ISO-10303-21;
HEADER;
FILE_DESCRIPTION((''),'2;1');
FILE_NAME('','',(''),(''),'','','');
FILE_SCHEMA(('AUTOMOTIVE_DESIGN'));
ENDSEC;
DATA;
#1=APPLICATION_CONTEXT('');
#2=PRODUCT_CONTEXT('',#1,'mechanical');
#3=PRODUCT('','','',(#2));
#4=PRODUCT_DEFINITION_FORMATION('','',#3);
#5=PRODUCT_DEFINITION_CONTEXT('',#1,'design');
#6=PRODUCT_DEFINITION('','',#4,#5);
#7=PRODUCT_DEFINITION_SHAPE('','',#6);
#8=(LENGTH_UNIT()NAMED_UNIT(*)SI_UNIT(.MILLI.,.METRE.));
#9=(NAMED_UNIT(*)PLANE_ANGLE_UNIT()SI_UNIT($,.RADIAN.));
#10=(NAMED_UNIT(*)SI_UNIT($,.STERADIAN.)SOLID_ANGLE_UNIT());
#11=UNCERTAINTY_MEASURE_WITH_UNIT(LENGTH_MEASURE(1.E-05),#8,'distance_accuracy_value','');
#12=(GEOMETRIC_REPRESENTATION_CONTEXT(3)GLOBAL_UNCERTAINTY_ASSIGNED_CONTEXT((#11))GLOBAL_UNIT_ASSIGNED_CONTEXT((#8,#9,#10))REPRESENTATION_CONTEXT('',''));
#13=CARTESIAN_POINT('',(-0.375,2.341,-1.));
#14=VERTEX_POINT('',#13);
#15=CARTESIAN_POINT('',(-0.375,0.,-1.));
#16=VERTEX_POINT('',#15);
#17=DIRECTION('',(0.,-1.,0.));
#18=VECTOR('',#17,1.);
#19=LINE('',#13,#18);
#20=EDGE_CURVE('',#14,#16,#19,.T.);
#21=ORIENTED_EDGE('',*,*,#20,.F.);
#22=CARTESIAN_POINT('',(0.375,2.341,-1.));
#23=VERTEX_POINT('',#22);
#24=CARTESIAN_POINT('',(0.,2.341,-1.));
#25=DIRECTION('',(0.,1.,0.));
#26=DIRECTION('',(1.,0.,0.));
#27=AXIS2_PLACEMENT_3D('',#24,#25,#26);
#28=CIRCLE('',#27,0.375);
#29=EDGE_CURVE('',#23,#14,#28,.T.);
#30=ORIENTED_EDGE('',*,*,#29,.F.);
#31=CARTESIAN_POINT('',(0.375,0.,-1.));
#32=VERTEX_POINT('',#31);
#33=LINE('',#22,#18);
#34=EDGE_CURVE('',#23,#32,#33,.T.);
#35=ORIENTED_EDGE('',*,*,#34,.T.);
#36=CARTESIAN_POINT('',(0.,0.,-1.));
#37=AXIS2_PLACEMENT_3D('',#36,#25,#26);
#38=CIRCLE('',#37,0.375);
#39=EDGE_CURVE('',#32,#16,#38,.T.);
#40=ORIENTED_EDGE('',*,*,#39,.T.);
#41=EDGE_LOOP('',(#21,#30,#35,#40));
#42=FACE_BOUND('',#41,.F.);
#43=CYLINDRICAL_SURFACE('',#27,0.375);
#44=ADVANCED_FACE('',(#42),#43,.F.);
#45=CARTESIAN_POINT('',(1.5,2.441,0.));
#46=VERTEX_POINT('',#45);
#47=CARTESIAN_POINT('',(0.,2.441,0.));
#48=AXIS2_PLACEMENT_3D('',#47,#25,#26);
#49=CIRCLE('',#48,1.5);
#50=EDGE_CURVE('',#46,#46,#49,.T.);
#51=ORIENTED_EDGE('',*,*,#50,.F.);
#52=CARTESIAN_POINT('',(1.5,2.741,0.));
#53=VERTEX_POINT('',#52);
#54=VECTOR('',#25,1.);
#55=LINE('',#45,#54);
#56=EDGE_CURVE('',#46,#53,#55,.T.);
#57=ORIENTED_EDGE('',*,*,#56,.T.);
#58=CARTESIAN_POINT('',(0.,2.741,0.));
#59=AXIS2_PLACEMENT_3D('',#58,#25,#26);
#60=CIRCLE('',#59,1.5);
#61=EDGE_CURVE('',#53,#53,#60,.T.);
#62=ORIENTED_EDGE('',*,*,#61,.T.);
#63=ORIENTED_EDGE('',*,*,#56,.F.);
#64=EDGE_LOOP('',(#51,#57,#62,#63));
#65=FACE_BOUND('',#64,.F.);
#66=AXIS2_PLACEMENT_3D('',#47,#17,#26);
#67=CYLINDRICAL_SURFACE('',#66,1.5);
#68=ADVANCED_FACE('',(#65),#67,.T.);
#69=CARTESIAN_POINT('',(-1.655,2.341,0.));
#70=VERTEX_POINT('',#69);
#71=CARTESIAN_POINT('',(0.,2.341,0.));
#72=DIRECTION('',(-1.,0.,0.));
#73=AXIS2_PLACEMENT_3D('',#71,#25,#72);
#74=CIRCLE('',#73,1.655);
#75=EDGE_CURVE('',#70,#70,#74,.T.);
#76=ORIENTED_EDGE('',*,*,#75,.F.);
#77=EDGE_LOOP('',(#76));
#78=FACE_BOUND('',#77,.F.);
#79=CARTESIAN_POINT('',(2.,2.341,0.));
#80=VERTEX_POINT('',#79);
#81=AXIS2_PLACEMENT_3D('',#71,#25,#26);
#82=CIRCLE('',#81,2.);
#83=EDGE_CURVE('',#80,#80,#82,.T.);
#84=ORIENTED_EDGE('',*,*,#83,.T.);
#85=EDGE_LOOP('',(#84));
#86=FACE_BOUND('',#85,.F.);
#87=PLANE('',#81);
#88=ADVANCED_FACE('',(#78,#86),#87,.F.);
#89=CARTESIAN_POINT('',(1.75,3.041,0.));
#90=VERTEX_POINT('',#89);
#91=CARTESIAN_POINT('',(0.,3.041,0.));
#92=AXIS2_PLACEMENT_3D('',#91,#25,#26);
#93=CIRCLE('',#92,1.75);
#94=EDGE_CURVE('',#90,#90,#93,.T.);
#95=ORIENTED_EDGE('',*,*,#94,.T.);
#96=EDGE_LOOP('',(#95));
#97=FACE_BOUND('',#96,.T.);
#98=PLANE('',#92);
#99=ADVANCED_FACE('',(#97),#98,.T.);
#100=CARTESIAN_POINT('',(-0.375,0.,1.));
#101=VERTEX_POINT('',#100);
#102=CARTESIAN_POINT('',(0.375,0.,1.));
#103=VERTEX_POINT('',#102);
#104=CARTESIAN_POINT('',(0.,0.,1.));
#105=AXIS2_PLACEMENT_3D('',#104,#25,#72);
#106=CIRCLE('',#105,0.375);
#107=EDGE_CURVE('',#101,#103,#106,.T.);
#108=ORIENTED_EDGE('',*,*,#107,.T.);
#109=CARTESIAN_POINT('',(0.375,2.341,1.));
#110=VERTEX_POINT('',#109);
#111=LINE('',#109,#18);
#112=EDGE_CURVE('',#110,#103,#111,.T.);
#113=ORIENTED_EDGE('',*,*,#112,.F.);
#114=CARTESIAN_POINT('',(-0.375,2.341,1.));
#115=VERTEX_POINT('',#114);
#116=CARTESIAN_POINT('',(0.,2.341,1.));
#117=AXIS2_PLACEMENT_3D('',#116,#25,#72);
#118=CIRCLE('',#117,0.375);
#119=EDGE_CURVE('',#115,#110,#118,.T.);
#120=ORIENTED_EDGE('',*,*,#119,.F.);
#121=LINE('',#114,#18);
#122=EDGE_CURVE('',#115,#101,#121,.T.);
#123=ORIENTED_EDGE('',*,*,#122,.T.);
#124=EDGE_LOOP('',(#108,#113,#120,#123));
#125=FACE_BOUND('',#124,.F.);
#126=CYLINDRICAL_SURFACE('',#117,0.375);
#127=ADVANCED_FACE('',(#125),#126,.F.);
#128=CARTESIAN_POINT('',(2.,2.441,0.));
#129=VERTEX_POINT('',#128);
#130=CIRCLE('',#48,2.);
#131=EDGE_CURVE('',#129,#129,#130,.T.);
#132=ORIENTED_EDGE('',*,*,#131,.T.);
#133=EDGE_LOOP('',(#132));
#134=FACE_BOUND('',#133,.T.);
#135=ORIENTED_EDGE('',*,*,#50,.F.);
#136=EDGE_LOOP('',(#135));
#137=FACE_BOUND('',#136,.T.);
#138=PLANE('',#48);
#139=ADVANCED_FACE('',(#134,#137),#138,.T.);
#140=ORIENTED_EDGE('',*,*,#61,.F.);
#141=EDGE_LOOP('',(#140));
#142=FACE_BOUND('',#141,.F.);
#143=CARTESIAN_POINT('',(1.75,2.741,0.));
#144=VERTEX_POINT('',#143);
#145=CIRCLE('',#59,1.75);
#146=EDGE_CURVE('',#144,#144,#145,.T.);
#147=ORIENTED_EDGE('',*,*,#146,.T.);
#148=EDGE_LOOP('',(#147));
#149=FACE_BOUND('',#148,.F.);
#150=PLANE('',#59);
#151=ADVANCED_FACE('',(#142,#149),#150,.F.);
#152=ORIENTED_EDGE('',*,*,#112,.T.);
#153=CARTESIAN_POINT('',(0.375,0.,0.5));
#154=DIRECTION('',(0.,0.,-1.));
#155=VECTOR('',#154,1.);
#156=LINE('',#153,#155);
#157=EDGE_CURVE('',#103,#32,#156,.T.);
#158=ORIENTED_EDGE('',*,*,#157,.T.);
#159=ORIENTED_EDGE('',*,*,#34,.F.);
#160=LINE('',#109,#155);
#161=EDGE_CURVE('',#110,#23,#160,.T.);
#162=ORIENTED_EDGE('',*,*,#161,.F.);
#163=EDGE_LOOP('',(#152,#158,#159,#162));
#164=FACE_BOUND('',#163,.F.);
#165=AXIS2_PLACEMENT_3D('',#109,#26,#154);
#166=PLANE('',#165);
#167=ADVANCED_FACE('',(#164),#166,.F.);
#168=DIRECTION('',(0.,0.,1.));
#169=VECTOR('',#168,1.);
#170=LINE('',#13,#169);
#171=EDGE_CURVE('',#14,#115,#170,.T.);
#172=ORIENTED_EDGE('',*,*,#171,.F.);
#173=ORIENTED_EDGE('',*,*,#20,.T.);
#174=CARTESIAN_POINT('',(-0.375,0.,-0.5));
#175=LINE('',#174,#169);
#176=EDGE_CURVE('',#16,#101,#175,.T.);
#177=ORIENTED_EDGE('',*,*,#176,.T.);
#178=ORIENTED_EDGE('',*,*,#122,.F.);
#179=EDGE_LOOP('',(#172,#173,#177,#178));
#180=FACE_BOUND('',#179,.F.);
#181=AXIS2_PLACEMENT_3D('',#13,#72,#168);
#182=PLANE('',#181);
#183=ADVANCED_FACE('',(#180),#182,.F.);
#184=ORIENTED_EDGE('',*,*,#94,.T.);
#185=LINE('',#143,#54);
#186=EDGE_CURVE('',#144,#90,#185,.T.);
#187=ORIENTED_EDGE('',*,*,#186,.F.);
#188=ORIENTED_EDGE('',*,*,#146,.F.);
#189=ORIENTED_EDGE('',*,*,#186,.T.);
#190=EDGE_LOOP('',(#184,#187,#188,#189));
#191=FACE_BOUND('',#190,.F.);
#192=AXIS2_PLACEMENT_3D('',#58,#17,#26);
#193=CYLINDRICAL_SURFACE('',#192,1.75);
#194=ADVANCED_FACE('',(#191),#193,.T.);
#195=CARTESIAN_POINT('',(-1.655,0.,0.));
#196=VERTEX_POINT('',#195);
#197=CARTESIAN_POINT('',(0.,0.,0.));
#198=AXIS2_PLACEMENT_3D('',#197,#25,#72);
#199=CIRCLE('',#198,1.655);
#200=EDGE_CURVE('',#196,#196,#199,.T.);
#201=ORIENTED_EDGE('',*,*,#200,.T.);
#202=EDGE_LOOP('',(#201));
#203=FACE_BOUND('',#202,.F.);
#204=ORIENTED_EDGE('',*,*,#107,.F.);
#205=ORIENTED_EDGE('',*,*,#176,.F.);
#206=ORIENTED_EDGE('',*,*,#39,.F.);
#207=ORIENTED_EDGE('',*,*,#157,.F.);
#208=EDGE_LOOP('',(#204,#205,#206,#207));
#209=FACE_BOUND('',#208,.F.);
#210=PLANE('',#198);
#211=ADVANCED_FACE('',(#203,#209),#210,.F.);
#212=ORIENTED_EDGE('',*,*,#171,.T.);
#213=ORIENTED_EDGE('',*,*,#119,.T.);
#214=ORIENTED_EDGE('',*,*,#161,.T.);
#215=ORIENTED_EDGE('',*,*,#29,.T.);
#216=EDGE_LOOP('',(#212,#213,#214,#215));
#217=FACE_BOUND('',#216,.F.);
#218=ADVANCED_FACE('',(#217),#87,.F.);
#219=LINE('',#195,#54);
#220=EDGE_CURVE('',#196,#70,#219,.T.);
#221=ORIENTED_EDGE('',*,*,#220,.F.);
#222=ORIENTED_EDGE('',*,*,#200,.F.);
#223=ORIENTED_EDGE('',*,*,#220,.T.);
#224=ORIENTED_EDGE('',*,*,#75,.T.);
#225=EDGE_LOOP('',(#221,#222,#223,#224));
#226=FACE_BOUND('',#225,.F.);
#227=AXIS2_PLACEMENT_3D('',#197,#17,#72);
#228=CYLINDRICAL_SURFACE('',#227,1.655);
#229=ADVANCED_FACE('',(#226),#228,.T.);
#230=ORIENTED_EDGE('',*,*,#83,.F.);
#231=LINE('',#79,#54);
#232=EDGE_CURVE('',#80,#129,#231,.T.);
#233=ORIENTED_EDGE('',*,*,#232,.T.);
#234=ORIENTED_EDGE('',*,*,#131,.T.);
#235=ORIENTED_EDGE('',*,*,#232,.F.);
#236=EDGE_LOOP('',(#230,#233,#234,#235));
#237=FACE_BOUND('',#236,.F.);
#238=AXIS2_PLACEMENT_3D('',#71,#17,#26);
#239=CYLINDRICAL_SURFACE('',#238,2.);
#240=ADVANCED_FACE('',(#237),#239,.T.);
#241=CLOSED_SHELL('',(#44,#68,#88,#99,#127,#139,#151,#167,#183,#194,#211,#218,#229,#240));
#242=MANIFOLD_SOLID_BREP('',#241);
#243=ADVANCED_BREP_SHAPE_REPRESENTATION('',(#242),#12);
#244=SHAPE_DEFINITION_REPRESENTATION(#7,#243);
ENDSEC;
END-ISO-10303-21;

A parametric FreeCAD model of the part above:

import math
import FreeCAD as App
import Part
import Sketcher

V = App.Vector
Q = App.Units.Quantity

doc = App.newDocument("Part")
body = doc.addObject("PartDesign::Body", "Body")

# Sketch on XZ plane
sketch1 = body.newObject("Sketcher::SketchObject", "Sketch")
sketch1.AttachmentSupport = (doc.getObject("XZ_Plane"), [""])
sketch1.MapMode = "FlatFace"
sketch1.addGeometry(Part.Circle(V(0, 0, 0), V(0, 0, 1), 1.7), False)
sketch1.addConstraint([
    Sketcher.Constraint("Coincident", 0, 3, -1, 1),
    Sketcher.Constraint("Diameter", 0, Q("3.31 mm")),
])
pad1 = body.newObject("PartDesign::Pad", "Pad")
pad1.Profile = sketch1
pad1.Length = 2.341
pad1.Reversed = True

# Sketch on XZ plane
sketch2 = body.newObject("Sketcher::SketchObject", "Sketch001")
sketch2.AttachmentSupport = (doc.getObject("XZ_Plane"), [""])
sketch2.MapMode = "FlatFace"
sketch2.AttachmentOffset = App.Placement(V(0, 0, -2.341), App.Rotation())
sketch2.addGeometry([
    Part.ArcOfCircle(Part.Circle(V(0, 1, 0), V(0, 0, 1), 0.38), math.radians(0), math.radians(180)),
    Part.LineSegment(V(0.38, 1, 0), V(0.38, -1, 0)),
    Part.ArcOfCircle(Part.Circle(V(0, -1, 0), V(0, 0, 1), 0.38), math.radians(180), math.radians(360)),
    Part.LineSegment(V(-0.38, -1, 0), V(-0.38, 1, 0)),
], False)
sketch2.addConstraint([
    Sketcher.Constraint("Tangent", 0, 1, 1, 1),
    Sketcher.Constraint("Tangent", 1, 2, 2, 2),
    Sketcher.Constraint("Tangent", 2, 1, 3, 1),
    Sketcher.Constraint("Tangent", 3, 2, 0, 2),
    Sketcher.Constraint("Vertical", 1),
    Sketcher.Constraint("Vertical", 3),
    Sketcher.Constraint("Symmetric", 0, 3, 2, 3, -1, 1),
    Sketcher.Constraint("DistanceY", -1, 1, 0, 3, Q("1 mm")),
    Sketcher.Constraint("Radius", 0, Q("0.375 mm")),
])
pocket1 = body.newObject("PartDesign::Pocket", "Pocket")
pocket1.Profile = sketch2
pocket1.Type = "ThroughAll"
pocket1.Reversed = True

# Sketch on XZ plane
sketch3 = body.newObject("Sketcher::SketchObject", "Sketch002")
sketch3.AttachmentSupport = (doc.getObject("XZ_Plane"), [""])
sketch3.MapMode = "FlatFace"
sketch3.AttachmentOffset = App.Placement(V(0, 0, -2.341), App.Rotation())
sketch3.addGeometry(Part.Circle(V(0, 0, 0), V(0, 0, 1), 2), False)
sketch3.addConstraint([
    Sketcher.Constraint("Coincident", 0, 3, -1, 1),
    Sketcher.Constraint("Diameter", 0, Q("4 mm")),
])
pad2 = body.newObject("PartDesign::Pad", "Pad001")
pad2.Profile = sketch3
pad2.Length = 0.1
pad2.Reversed = True

# Sketch on XZ plane
sketch4 = body.newObject("Sketcher::SketchObject", "Sketch003")
sketch4.AttachmentSupport = (doc.getObject("XZ_Plane"), [""])
sketch4.MapMode = "FlatFace"
sketch4.AttachmentOffset = App.Placement(V(0, 0, -2.441), App.Rotation())
sketch4.addGeometry(Part.Circle(V(0, 0, 0), V(0, 0, 1), 1.5), False)
sketch4.addConstraint([
    Sketcher.Constraint("Coincident", 0, 3, -1, 1),
    Sketcher.Constraint("Diameter", 0, Q("3 mm")),
])
pad3 = body.newObject("PartDesign::Pad", "Pad002")
pad3.Profile = sketch4
pad3.Length = 0.3
pad3.Reversed = True

# Sketch on XZ plane
sketch5 = body.newObject("Sketcher::SketchObject", "Sketch004")
sketch5.AttachmentSupport = (doc.getObject("XZ_Plane"), [""])
sketch5.MapMode = "FlatFace"
sketch5.AttachmentOffset = App.Placement(V(0, 0, -2.741), App.Rotation())
sketch5.addGeometry(Part.Circle(V(0, 0, 0), V(0, 0, 1), 1.8), False)
sketch5.addConstraint([
    Sketcher.Constraint("Coincident", 0, 3, -1, 1),
    Sketcher.Constraint("Diameter", 0, Q("3.5 mm")),
])
pad4 = body.newObject("PartDesign::Pad", "Pad003")
pad4.Profile = sketch5
pad4.Length = 0.3
pad4.Reversed = True

doc.recompute()
